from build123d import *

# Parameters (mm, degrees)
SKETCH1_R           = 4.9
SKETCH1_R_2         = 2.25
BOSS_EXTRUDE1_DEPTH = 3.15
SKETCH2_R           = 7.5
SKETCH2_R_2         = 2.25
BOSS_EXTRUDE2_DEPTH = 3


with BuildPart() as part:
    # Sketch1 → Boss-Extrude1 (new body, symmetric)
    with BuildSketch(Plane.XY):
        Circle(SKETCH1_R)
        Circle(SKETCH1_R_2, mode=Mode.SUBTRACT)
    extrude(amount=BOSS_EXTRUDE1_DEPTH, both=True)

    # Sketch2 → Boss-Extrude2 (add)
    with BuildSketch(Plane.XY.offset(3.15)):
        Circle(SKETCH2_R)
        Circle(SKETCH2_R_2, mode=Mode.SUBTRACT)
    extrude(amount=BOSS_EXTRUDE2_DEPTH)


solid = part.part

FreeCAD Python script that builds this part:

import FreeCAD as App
import Part
import Sketcher

V = App.Vector

doc = App.newDocument("Part")
body = doc.addObject("PartDesign::Body", "Body")

# Sketch on XY plane
sketch1 = doc.addObject("Sketcher::SketchObject", "Sketch")
body.addObject(sketch1)
sketch1.AttachmentSupport = (doc.XY_Plane, [""])
sketch1.MapMode = "FlatFace"
sketch1.addGeometry([
    Part.Circle(V(0, 0, 0), V(0, 0, 1), 4.9),
    Part.Circle(V(0, 0, 0), V(0, 0, 1), 2.2),
], False)
sketch1.addConstraint([
    Sketcher.Constraint("Coincident", 0, 3, -1, 1),
    Sketcher.Constraint("Coincident", 1, 3, -1, 1),
    Sketcher.Constraint("Diameter", 0, 9.8),
    Sketcher.Constraint("Diameter", 1, 4.5),
])
pad1 = doc.addObject("PartDesign::Pad", "Pad")
body.addObject(pad1)
pad1.Profile = sketch1
pad1.Length = 6.3
pad1.Midplane = True

# Sketch on XY plane
sketch2 = doc.addObject("Sketcher::SketchObject", "Sketch001")
body.addObject(sketch2)
sketch2.AttachmentSupport = (doc.XY_Plane, [""])
sketch2.MapMode = "FlatFace"
sketch2.AttachmentOffset = App.Placement(V(0, 0, 3.15), App.Rotation())
sketch2.addGeometry([
    Part.Circle(V(0, 0, 0), V(0, 0, 1), 7.5),
    Part.Circle(V(0, 0, 0), V(0, 0, 1), 2.2),
], False)
sketch2.addConstraint([
    Sketcher.Constraint("Coincident", 0, 3, -1, 1),
    Sketcher.Constraint("Coincident", 1, 3, -1, 1),
    Sketcher.Constraint("Diameter", 0, 15.0),
    Sketcher.Constraint("Diameter", 1, 4.5),
])
pad2 = doc.addObject("PartDesign::Pad", "Pad001")
body.addObject(pad2)
pad2.Profile = sketch2
pad2.Length = 3

doc.recompute()
